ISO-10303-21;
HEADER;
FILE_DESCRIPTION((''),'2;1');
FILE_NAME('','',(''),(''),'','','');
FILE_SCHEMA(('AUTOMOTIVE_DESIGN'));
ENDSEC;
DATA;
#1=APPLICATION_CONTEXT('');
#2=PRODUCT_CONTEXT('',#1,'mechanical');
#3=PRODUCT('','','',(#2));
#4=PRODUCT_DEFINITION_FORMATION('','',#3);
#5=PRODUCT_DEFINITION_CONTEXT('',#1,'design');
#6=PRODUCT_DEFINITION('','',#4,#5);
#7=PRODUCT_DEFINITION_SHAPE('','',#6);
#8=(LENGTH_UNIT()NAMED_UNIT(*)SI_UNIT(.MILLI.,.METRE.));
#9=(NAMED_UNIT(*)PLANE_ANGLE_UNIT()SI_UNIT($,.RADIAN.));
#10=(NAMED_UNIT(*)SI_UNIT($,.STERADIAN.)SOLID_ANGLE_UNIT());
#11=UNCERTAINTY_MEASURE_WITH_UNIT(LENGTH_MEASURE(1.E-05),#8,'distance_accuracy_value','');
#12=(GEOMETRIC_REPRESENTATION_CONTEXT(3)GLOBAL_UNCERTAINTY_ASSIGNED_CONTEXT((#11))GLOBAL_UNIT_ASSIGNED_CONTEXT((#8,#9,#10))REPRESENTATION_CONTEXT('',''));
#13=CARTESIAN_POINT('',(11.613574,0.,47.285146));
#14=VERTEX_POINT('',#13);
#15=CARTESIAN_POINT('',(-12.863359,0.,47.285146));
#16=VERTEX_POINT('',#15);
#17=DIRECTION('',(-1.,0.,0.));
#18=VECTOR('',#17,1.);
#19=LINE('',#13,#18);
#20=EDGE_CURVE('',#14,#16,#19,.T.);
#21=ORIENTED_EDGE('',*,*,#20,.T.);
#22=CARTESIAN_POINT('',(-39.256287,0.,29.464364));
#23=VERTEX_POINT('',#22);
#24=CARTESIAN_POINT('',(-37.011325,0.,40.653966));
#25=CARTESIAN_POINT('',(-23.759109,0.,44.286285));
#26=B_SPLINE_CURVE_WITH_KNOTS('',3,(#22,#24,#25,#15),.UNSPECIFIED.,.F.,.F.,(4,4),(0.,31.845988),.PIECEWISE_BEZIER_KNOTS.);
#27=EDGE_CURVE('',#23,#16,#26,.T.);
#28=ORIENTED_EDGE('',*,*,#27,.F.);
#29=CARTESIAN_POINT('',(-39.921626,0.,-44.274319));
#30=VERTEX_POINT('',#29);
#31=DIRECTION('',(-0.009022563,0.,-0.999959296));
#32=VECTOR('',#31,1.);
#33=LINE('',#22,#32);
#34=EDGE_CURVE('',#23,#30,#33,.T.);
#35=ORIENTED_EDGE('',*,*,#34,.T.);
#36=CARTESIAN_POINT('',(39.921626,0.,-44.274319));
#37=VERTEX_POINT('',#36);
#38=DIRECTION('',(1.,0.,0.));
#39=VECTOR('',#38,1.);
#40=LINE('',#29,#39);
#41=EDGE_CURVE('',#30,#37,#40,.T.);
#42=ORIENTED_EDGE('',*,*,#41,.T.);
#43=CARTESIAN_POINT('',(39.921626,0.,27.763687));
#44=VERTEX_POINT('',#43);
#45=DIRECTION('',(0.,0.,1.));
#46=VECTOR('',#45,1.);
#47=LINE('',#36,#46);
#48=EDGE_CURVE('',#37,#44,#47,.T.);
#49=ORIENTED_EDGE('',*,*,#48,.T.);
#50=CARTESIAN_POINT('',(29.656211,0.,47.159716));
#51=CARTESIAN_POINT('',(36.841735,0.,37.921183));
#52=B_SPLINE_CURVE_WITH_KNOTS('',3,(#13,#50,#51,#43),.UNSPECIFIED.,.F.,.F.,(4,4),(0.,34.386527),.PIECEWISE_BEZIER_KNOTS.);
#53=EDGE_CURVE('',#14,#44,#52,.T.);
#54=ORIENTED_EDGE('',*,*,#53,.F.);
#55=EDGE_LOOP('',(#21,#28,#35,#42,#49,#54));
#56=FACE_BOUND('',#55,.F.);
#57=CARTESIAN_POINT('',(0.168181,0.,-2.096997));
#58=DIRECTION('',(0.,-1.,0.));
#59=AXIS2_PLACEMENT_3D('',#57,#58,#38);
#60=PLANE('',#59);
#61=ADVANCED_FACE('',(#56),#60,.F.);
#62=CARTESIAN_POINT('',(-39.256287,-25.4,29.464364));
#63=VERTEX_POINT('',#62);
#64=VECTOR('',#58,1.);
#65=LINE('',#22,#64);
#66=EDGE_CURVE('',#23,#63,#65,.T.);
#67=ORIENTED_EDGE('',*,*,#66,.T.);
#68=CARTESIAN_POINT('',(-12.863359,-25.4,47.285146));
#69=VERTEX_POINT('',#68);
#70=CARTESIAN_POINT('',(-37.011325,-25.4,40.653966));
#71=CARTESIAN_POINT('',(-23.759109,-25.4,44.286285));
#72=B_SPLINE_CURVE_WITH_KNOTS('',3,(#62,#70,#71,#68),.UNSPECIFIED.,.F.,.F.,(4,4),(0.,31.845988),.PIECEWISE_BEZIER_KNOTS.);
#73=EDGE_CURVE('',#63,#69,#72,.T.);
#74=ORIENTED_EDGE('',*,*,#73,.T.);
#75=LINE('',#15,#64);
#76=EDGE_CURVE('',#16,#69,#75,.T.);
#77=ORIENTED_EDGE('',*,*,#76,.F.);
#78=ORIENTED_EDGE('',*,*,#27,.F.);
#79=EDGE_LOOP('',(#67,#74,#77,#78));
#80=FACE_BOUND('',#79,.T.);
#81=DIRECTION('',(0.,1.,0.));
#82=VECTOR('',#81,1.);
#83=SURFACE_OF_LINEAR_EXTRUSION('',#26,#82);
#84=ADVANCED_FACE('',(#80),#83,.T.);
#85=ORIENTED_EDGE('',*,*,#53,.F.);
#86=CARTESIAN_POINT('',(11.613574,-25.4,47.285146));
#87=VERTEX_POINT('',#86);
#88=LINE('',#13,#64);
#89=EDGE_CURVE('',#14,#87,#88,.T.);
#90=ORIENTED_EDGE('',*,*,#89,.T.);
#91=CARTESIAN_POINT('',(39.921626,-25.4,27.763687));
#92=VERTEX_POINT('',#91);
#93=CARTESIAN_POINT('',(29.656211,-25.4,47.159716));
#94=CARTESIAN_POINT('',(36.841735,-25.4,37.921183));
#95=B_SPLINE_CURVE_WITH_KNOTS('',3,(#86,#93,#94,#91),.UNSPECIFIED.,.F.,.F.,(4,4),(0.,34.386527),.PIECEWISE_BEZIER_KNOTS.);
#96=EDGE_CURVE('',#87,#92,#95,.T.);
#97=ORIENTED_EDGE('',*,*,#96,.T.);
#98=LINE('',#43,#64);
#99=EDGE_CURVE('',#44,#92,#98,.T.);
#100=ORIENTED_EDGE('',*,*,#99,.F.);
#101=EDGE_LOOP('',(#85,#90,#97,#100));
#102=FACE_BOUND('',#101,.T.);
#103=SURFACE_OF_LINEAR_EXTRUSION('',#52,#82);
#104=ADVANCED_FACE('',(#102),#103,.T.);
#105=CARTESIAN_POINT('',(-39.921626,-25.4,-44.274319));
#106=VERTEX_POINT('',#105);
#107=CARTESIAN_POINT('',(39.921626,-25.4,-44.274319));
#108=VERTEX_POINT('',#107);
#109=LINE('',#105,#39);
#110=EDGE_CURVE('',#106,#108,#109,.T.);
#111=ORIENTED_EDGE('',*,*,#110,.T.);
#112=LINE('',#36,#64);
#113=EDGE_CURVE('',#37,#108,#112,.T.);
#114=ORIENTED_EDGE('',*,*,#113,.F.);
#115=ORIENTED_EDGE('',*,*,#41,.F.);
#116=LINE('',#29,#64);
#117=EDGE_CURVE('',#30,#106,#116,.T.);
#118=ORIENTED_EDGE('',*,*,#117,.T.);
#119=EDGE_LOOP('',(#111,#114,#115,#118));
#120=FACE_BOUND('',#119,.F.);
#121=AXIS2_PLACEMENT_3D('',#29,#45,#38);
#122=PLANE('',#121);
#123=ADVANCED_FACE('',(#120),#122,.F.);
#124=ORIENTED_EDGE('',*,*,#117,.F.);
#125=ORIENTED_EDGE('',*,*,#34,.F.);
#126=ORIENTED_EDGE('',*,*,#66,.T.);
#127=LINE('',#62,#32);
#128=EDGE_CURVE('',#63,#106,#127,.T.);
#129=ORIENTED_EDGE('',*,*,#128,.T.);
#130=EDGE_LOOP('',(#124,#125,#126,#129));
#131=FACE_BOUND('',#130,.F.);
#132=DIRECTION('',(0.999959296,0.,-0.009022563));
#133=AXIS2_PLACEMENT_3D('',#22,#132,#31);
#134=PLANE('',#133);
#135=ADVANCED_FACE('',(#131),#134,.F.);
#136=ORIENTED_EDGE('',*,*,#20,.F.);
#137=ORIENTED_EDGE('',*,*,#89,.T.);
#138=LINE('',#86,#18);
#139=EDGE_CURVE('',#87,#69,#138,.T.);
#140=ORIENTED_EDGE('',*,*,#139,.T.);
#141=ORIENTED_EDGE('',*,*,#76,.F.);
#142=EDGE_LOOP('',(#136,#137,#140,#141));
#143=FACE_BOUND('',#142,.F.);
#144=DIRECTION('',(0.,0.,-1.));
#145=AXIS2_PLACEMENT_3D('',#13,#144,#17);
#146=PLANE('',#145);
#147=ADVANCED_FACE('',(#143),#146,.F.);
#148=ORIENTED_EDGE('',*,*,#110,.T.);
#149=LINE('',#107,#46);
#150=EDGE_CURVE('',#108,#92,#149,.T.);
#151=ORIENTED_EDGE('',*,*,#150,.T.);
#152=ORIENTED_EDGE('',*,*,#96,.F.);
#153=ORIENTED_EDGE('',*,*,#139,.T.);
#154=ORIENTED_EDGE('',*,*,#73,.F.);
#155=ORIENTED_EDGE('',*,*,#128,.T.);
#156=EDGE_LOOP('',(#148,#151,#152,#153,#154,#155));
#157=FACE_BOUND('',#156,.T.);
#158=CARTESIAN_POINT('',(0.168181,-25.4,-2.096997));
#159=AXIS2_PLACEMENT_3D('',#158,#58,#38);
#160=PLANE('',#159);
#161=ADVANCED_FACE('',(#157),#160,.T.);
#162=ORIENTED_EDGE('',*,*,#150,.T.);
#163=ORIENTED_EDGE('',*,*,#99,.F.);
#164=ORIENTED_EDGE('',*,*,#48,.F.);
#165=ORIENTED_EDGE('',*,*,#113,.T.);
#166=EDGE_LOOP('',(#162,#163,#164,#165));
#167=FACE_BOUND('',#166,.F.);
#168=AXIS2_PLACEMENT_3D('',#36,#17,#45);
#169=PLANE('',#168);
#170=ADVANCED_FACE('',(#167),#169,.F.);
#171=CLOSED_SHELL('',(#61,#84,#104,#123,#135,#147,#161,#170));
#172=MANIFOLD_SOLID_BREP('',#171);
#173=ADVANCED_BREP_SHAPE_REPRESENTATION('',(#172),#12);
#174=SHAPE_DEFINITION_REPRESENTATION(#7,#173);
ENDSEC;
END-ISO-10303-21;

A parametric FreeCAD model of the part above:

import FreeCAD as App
import Part
import Sketcher

V = App.Vector

doc = App.newDocument("Part")
params = doc.addObject("Spreadsheet::Sheet", "Params")
for row, (alias, value) in enumerate([
    ("pad1_length", "1 in"),
], start=1):
    params.set(f"A{row}", alias)
    params.set(f"B{row}", "=" + value)
    params.setAlias(f"B{row}", alias)

body = doc.addObject("PartDesign::Body", "Body")

# Sketch on XZ plane
sketch1 = body.newObject("Sketcher::SketchObject", "Sketch")
sketch1.AttachmentSupport = (doc.getObject("XZ_Plane"), [""])
sketch1.MapMode = "FlatFace"
sketch1.addGeometry(Part.LineSegment(V(11.613574, 47.285146, 0), V(-12.863359, 47.285146, 0)), False)
sketch1.addGeometry(Part.BSplineCurve([V(-39.256287, 29.464364, 0), V(-37.011325, 40.653966, 0), V(-23.759109, 44.286285, 0), V(-12.863359, 47.285146, 0)], [4, 4], [0, 31.845988], False, 3, [1, 1, 1, 1], False), False)
sketch1.addGeometry(Part.LineSegment(V(-39.256287, 29.464364, 0), V(-39.921626, -44.274319, 0)), False)
sketch1.addGeometry(Part.LineSegment(V(-39.921626, -44.274319, 0), V(39.921626, -44.274319, 0)), False)
sketch1.addGeometry(Part.LineSegment(V(39.921626, -44.274319, 0), V(39.921626, 27.763687, 0)), False)
sketch1.addGeometry(Part.BSplineCurve([V(11.613574, 47.285146, 0), V(29.656211, 47.159716, 0), V(36.841735, 37.921183, 0), V(39.921626, 27.763687, 0)], [4, 4], [0, 34.386527], False, 3, [1, 1, 1, 1], False), False)
sketch1.addConstraint(Sketcher.Constraint("Block", 1))
sketch1.addConstraint(Sketcher.Constraint("Block", 5))
sketch1.addConstraint(Sketcher.Constraint("Coincident", 0, 2, 1, 2))
sketch1.addConstraint(Sketcher.Constraint("Coincident", 1, 1, 2, 1))
sketch1.addConstraint(Sketcher.Constraint("Coincident", 2, 2, 3, 1))
sketch1.addConstraint(Sketcher.Constraint("Coincident", 3, 2, 4, 1))
sketch1.addConstraint(Sketcher.Constraint("Coincident", 4, 2, 5, 2))
sketch1.addConstraint(Sketcher.Constraint("Coincident", 5, 1, 0, 1))
sketch1.addConstraint(Sketcher.Constraint("Horizontal", 3))
sketch1.addConstraint(Sketcher.Constraint("Vertical", 4))
sketch1.addConstraint(Sketcher.Constraint("DistanceX", 3, 1, 3, 2, 79.843252))
sketch1.addConstraint(Sketcher.Constraint("DistanceY", 4, 1, 4, 2, 72.038006))
pad1 = body.newObject("PartDesign::Pad", "Pad")
pad1.Profile = sketch1
pad1.setExpression("Length", "Params.pad1_length")

doc.recompute()
